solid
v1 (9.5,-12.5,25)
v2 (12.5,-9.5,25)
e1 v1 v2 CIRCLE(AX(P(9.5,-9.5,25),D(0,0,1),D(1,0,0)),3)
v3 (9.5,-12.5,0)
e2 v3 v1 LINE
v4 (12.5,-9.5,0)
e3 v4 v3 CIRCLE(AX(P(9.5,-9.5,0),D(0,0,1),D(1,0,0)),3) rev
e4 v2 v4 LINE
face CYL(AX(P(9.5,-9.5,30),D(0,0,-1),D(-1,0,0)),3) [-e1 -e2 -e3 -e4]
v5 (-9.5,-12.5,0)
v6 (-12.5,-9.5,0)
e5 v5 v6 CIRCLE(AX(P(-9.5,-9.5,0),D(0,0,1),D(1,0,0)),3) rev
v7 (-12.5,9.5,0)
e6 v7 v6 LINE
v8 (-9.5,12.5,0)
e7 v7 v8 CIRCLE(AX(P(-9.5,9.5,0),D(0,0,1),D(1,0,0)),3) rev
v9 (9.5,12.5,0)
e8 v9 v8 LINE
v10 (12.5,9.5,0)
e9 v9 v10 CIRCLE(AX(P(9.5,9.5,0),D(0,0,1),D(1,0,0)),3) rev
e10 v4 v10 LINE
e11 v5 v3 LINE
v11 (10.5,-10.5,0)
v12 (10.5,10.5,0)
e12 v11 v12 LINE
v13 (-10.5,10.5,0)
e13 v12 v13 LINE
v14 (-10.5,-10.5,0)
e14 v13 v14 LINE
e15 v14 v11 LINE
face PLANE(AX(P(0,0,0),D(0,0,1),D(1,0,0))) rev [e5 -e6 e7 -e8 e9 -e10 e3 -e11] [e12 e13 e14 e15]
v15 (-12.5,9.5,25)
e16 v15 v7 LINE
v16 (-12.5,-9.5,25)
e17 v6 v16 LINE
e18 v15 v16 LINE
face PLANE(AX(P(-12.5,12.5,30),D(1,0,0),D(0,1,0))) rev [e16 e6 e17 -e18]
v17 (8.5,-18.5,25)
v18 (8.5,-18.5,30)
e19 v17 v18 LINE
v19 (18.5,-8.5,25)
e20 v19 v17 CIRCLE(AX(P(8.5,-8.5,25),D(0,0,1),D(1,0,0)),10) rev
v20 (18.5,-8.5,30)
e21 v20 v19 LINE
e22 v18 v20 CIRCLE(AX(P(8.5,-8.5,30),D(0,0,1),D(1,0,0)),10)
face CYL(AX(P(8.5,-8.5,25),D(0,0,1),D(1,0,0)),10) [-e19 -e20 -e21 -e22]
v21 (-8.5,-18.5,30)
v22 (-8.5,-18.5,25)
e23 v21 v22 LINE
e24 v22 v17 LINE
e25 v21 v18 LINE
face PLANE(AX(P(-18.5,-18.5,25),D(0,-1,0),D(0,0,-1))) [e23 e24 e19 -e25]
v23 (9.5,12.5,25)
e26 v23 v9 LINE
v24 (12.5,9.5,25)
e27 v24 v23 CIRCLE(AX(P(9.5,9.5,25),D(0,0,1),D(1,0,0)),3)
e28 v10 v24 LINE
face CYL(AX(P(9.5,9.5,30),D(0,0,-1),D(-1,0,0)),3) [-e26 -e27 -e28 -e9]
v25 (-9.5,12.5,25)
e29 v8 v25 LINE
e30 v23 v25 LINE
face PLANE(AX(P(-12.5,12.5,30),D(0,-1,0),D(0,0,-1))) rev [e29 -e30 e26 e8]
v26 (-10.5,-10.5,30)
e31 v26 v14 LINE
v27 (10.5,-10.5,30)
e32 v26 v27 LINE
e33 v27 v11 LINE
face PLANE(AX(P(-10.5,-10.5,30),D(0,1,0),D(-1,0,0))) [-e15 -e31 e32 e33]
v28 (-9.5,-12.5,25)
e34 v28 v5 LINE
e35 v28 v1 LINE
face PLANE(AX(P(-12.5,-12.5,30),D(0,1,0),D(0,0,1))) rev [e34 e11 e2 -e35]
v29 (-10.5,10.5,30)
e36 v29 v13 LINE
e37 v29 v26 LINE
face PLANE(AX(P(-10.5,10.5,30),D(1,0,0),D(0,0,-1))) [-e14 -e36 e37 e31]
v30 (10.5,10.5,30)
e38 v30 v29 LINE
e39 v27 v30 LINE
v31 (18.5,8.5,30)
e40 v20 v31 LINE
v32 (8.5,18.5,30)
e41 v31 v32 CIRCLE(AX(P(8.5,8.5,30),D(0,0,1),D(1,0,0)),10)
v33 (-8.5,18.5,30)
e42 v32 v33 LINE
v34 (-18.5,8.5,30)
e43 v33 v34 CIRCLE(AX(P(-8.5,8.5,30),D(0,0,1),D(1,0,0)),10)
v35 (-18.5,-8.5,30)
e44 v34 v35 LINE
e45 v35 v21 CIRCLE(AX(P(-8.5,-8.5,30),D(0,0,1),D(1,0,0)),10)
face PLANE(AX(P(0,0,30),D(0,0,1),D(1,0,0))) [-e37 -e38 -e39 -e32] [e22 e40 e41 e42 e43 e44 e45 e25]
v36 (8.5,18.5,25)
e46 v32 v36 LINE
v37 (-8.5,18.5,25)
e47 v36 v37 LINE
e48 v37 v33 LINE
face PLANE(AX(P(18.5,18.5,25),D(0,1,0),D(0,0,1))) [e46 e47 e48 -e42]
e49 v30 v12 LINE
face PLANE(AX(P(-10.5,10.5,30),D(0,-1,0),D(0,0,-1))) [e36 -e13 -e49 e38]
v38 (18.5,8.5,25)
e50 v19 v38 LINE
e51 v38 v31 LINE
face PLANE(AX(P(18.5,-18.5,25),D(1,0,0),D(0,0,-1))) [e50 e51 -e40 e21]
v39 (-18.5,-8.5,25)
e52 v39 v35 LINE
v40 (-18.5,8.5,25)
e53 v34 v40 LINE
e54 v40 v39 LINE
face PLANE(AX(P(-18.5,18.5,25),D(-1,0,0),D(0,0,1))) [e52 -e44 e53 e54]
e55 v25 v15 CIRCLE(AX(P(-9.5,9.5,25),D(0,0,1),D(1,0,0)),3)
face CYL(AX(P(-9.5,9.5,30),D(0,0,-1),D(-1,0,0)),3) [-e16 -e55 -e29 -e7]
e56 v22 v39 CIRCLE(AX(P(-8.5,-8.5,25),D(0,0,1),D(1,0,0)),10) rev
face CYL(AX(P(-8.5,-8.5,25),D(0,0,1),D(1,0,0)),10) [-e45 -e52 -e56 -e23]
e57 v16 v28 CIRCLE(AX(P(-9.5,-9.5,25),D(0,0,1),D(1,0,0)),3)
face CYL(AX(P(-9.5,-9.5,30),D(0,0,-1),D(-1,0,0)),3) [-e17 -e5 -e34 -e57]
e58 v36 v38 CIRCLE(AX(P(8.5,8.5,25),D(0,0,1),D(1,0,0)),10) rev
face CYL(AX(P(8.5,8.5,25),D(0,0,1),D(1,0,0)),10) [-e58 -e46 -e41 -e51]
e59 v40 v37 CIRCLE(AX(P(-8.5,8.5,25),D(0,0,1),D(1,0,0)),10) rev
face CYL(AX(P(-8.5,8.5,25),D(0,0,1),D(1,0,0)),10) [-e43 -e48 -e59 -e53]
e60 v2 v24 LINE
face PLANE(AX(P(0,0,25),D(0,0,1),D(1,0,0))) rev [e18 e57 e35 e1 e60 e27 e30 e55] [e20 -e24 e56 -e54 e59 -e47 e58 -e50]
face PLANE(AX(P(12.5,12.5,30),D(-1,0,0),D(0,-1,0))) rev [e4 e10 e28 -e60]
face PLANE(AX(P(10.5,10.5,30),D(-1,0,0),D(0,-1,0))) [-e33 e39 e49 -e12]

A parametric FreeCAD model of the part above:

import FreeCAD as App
import Part
import Sketcher

V = App.Vector


def edges_at(feature, points):
    """Names of the edges that pass closest to the given points."""
    edges = feature.Shape.Edges
    near = lambda p: min(range(len(edges)), key=lambda i: edges[i].distToShape(Part.Vertex(*p))[0])
    return sorted({f"Edge{near(p) + 1}" for p in points})

doc = App.newDocument("Part")
body = doc.addObject("PartDesign::Body", "Body")

# Sketch on XY plane
sketch1 = body.newObject("Sketcher::SketchObject", "Sketch")
sketch1.AttachmentSupport = (doc.getObject("XY_Plane"), [""])
sketch1.MapMode = "FlatFace"
sketch1.addGeometry(Part.LineSegment(V(-12, 12, 0), V(-12, -12, 0)), False)
sketch1.addGeometry(Part.LineSegment(V(-12, -12, 0), V(12, -12, 0)), False)
sketch1.addGeometry(Part.LineSegment(V(12, -12, 0), V(12, 12, 0)), False)
sketch1.addGeometry(Part.LineSegment(V(12, 12, 0), V(-12, 12, 0)), False)
sketch1.addGeometry(Part.LineSegment(V(10, -10, 0), V(-10, -10, 0)), False)
sketch1.addGeometry(Part.LineSegment(V(-10, -10, 0), V(-10, 10, 0)), False)
sketch1.addGeometry(Part.LineSegment(V(-10, 10, 0), V(10, 10, 0)), False)
sketch1.addGeometry(Part.LineSegment(V(10, 10, 0), V(10, -10, 0)), False)
sketch1.addConstraint(Sketcher.Constraint("Coincident", 0, 2, 1, 1))
sketch1.addConstraint(Sketcher.Constraint("Coincident", 1, 2, 2, 1))
sketch1.addConstraint(Sketcher.Constraint("Coincident", 2, 2, 3, 1))
sketch1.addConstraint(Sketcher.Constraint("Coincident", 3, 2, 0, 1))
sketch1.addConstraint(Sketcher.Constraint("Coincident", 4, 2, 5, 1))
sketch1.addConstraint(Sketcher.Constraint("Coincident", 5, 2, 6, 1))
sketch1.addConstraint(Sketcher.Constraint("Coincident", 6, 2, 7, 1))
sketch1.addConstraint(Sketcher.Constraint("Coincident", 7, 2, 4, 1))
sketch1.addConstraint(Sketcher.Constraint("Vertical", 0))
sketch1.addConstraint(Sketcher.Constraint("Horizontal", 1))
sketch1.addConstraint(Sketcher.Constraint("Vertical", 2))
sketch1.addConstraint(Sketcher.Constraint("Horizontal", 3))
sketch1.addConstraint(Sketcher.Constraint("Horizontal", 4))
sketch1.addConstraint(Sketcher.Constraint("Vertical", 5))
sketch1.addConstraint(Sketcher.Constraint("Horizontal", 6))
sketch1.addConstraint(Sketcher.Constraint("Vertical", 7))
sketch1.addConstraint(Sketcher.Constraint("Symmetric", 0, 2, 2, 2, -1, 1))
sketch1.addConstraint(Sketcher.Constraint("Symmetric", 4, 2, 6, 2, -1, 1))
sketch1.addConstraint(Sketcher.Constraint("Equal", 3, 0))
sketch1.addConstraint(Sketcher.Constraint("Equal", 6, 5))
sketch1.addConstraint(Sketcher.Constraint("DistanceX", 1, 1, 1, 2, 25.0))
sketch1.addConstraint(Sketcher.Constraint("DistanceX", 4, 2, 4, 1, 21.0))
pad1 = body.newObject("PartDesign::Pad", "Pad")
pad1.Profile = sketch1
pad1.Length = 30

# Sketch on XY plane
sketch2 = body.newObject("Sketcher::SketchObject", "Sketch001")
sketch2.AttachmentSupport = (doc.getObject("XY_Plane"), [""])
sketch2.MapMode = "FlatFace"
sketch2.AttachmentOffset = App.Placement(V(0, 0, 30), App.Rotation())
sketch2.addGeometry(Part.LineSegment(V(-18, 18, 0), V(-18, -18, 0)), False)
sketch2.addGeometry(Part.LineSegment(V(-18, -18, 0), V(18, -18, 0)), False)
sketch2.addGeometry(Part.LineSegment(V(18, -18, 0), V(18, 18, 0)), False)
sketch2.addGeometry(Part.LineSegment(V(18, 18, 0), V(-18, 18, 0)), False)
sketch2.addGeometry(Part.LineSegment(V(12, -12, 0), V(-12, -12, 0)), False)
sketch2.addGeometry(Part.LineSegment(V(-12, -12, 0), V(-12, 12, 0)), False)
sketch2.addGeometry(Part.LineSegment(V(-12, 12, 0), V(12, 12, 0)), False)
sketch2.addGeometry(Part.LineSegment(V(12, 12, 0), V(12, -12, 0)), False)
sketch2.addConstraint(Sketcher.Constraint("Coincident", 0, 2, 1, 1))
sketch2.addConstraint(Sketcher.Constraint("Coincident", 1, 2, 2, 1))
sketch2.addConstraint(Sketcher.Constraint("Coincident", 2, 2, 3, 1))
sketch2.addConstraint(Sketcher.Constraint("Coincident", 3, 2, 0, 1))
sketch2.addConstraint(Sketcher.Constraint("Coincident", 4, 2, 5, 1))
sketch2.addConstraint(Sketcher.Constraint("Coincident", 5, 2, 6, 1))
sketch2.addConstraint(Sketcher.Constraint("Coincident", 6, 2, 7, 1))
sketch2.addConstraint(Sketcher.Constraint("Coincident", 7, 2, 4, 1))
sketch2.addConstraint(Sketcher.Constraint("Vertical", 0))
sketch2.addConstraint(Sketcher.Constraint("Horizontal", 1))
sketch2.addConstraint(Sketcher.Constraint("Vertical", 2))
sketch2.addConstraint(Sketcher.Constraint("Horizontal", 3))
sketch2.addConstraint(Sketcher.Constraint("Horizontal", 4))
sketch2.addConstraint(Sketcher.Constraint("Vertical", 5))
sketch2.addConstraint(Sketcher.Constraint("Horizontal", 6))
sketch2.addConstraint(Sketcher.Constraint("Vertical", 7))
sketch2.addConstraint(Sketcher.Constraint("Symmetric", 0, 2, 2, 2, -1, 1))
sketch2.addConstraint(Sketcher.Constraint("Symmetric", 4, 2, 6, 2, -1, 1))
sketch2.addConstraint(Sketcher.Constraint("Equal", 3, 0))
sketch2.addConstraint(Sketcher.Constraint("Equal", 6, 5))
sketch2.addConstraint(Sketcher.Constraint("DistanceX", 1, 1, 1, 2, 37.0))
sketch2.addConstraint(Sketcher.Constraint("DistanceX", 4, 2, 4, 1, 25.0))
pad2 = body.newObject("PartDesign::Pad", "Pad001")
pad2.Profile = sketch2
pad2.Length = 5
pad2.Reversed = True
doc.recompute()

fillet = body.newObject("PartDesign::Fillet", "Fillet")
fillet.Base = (pad2, edges_at(pad2, [
    (18.5, -18.5, 27.5),
    (-18.5, -18.5, 27.5),
    (-18.5, 18.5, 27.5),
    (18.5, 18.5, 27.5),
]))
fillet.Radius = 10
doc.recompute()

fillet2 = body.newObject("PartDesign::Fillet", "Fillet001")
fillet2.Base = (fillet, edges_at(fillet, [
    (12.5, -12.5, 12.5),
    (-12.5, -12.5, 12.5),
    (-12.5, 12.5, 12.5),
    (12.5, 12.5, 12.5),
]))
fillet2.Radius = 3

doc.recompute()
